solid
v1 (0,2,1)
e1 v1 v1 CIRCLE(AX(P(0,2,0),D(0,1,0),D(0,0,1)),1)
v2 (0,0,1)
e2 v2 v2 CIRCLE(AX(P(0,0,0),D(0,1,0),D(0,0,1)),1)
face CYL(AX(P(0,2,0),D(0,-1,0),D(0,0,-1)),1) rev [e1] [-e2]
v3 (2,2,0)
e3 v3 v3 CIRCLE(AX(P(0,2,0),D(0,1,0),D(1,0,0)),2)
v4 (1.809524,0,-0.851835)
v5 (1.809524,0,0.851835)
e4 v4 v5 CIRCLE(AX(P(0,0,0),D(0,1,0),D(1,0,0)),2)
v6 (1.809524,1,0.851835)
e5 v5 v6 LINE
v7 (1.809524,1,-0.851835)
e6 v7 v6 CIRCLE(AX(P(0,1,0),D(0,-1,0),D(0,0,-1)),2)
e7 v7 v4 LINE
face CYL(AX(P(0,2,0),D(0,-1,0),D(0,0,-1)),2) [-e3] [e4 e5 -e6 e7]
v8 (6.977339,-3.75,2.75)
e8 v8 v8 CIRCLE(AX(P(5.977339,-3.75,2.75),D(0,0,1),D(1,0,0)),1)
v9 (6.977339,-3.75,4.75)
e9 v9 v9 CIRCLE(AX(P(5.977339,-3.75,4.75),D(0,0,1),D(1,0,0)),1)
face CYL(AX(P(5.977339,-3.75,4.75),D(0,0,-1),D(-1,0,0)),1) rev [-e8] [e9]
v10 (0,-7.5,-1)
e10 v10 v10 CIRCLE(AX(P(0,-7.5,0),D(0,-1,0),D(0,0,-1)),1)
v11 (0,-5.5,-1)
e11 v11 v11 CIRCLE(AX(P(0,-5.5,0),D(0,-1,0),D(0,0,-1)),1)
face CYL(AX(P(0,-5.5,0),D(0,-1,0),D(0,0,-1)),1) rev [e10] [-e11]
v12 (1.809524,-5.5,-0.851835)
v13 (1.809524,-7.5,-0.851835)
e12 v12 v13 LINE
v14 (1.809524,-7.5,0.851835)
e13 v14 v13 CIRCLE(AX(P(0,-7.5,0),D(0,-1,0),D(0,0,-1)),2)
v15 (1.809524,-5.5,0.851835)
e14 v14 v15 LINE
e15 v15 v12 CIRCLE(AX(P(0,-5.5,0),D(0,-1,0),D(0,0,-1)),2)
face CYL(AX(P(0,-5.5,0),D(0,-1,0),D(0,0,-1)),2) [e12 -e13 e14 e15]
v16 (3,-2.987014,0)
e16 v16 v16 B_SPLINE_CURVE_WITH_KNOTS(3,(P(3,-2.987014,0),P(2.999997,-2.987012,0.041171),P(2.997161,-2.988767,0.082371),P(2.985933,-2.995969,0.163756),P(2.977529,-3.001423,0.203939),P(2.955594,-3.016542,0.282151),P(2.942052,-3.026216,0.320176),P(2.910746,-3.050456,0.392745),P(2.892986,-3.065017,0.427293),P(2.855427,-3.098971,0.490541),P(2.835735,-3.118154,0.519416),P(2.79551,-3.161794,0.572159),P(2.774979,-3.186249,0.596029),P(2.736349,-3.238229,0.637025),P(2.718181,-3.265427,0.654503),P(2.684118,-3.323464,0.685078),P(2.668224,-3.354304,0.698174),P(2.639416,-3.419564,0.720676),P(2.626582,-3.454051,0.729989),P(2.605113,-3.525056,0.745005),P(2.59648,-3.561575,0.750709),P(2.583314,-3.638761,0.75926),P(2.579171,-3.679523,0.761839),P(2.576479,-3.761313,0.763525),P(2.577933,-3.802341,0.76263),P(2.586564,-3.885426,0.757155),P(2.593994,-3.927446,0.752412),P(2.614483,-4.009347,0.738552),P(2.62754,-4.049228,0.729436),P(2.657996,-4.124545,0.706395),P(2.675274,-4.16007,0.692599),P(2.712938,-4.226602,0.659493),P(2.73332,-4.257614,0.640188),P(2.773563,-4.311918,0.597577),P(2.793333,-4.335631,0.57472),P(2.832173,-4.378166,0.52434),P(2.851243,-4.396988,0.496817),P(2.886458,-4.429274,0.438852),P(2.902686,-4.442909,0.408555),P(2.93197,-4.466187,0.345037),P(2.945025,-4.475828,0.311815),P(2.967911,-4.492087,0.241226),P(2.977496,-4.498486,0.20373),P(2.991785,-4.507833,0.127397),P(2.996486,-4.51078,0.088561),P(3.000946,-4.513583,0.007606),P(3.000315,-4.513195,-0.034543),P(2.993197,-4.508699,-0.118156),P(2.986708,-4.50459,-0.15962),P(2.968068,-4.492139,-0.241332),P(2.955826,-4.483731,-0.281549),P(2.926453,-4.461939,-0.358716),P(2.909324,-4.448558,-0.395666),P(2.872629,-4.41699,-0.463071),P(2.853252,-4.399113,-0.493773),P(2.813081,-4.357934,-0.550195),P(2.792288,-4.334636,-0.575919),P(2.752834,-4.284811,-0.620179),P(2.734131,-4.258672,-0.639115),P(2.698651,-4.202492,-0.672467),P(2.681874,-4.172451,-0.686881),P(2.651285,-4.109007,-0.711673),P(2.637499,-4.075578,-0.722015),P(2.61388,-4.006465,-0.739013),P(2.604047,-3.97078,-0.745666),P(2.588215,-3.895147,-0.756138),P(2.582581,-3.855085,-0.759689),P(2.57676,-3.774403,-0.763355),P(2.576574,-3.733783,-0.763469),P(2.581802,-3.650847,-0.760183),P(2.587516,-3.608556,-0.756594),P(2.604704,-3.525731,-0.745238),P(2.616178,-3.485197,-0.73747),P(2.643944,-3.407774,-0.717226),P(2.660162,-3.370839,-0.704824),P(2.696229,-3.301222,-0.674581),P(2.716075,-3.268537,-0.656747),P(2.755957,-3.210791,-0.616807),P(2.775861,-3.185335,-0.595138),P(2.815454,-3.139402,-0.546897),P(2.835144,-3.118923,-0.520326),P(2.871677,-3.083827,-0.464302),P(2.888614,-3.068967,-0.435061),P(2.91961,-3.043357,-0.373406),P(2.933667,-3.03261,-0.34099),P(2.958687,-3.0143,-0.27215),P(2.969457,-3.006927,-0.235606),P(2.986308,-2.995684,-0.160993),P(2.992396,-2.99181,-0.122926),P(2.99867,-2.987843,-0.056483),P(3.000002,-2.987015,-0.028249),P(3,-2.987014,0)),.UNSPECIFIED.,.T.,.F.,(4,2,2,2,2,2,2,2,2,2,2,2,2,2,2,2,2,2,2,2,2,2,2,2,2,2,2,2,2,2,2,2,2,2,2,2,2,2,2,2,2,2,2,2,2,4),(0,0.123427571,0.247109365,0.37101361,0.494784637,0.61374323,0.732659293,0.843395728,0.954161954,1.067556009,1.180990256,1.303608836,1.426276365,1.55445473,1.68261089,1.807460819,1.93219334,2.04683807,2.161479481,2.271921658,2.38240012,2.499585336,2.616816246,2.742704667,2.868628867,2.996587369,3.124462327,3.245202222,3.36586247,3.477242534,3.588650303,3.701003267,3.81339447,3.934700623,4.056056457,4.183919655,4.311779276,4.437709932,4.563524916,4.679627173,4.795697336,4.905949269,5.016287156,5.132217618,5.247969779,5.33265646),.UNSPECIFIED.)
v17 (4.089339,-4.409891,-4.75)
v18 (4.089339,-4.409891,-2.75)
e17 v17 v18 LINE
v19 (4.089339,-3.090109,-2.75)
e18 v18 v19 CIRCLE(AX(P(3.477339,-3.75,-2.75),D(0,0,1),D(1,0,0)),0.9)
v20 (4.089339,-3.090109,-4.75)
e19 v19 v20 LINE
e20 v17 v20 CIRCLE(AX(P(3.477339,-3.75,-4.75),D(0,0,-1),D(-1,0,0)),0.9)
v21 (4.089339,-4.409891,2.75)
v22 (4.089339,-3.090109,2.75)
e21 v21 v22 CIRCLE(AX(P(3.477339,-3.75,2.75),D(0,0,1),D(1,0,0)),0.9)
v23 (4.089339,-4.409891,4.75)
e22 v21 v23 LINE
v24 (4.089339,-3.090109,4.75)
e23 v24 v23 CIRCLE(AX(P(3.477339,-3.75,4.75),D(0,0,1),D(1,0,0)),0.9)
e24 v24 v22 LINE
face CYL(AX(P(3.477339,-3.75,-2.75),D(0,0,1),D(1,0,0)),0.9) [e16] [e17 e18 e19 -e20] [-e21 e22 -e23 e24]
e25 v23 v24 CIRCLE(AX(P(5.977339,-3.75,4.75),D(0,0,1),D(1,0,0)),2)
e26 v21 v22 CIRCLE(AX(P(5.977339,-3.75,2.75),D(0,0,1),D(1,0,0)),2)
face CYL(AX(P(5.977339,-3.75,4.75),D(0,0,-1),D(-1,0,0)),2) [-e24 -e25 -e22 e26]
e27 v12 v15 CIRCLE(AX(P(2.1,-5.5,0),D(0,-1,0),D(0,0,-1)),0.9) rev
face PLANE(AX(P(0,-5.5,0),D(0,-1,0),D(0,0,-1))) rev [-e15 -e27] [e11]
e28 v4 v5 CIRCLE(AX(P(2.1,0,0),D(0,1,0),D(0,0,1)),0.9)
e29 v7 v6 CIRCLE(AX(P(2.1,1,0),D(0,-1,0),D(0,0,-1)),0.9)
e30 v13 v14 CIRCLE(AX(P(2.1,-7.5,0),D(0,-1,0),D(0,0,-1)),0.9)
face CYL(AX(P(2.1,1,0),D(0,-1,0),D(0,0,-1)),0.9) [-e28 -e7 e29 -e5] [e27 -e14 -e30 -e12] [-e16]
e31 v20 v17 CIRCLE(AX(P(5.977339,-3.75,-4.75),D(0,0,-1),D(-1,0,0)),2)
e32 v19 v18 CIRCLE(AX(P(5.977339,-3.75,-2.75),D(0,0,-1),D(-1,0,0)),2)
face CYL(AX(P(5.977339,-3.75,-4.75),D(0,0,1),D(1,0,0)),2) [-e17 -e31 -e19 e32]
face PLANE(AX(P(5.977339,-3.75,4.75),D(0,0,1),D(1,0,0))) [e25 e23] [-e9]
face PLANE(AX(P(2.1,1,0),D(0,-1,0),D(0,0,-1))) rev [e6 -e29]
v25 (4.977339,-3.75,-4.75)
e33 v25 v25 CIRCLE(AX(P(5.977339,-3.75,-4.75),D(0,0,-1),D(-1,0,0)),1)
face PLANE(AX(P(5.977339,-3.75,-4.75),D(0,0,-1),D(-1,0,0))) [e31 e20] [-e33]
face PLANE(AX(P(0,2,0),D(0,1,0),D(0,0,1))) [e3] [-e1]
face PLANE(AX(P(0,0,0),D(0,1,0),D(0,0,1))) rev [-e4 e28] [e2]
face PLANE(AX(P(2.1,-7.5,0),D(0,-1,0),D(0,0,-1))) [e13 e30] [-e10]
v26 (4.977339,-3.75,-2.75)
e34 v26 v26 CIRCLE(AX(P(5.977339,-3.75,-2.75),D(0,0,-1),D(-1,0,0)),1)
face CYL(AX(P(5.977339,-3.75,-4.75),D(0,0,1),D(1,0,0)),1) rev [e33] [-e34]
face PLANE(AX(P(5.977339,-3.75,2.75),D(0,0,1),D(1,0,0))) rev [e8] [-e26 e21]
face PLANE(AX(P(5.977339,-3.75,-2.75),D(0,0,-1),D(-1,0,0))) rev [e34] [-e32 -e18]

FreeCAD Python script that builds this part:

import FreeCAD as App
import Part
import Sketcher
from FreeCAD import Vector
Q = App.Units.Quantity

doc = App.newDocument("Part")
body = doc.addObject("PartDesign::Body", "Body")

# Sketch on XZ plane
sketch1 = body.newObject("Sketcher::SketchObject", "Sketch")
sketch1.AttachmentSupport = (doc.getObject("XZ_Plane"), [""])
sketch1.MapMode = "FlatFace"
sketch1.addGeometry(Part.Circle(Vector(0, 0, 0), Vector(0, 0, 1), 2), False)
sketch1.addGeometry(Part.Circle(Vector(0, 0, 0), Vector(0, 0, 1), 1), False)
sketch1.addConstraint(Sketcher.Constraint("Coincident", 0, 3, -1, 1))
sketch1.addConstraint(Sketcher.Constraint("Coincident", 1, 3, -1, 1))
sketch1.addConstraint(Sketcher.Constraint("Diameter", 0, Q("4 mm")))
sketch1.addConstraint(Sketcher.Constraint("Diameter", 1, Q("2 mm")))
pad1 = body.newObject("PartDesign::Pad", "Pad")
pad1.Profile = sketch1
pad1.Length = 2
pad1.Reversed = True

# Sketch on XZ plane
sketch2 = body.newObject("Sketcher::SketchObject", "Sketch001")
sketch2.AttachmentSupport = (doc.getObject("XZ_Plane"), [""])
sketch2.MapMode = "FlatFace"
sketch2.addGeometry(Part.Circle(Vector(2.1, 0, 0), Vector(0, 0, 1), 0.9), False)
sketch2.addConstraint(Sketcher.Constraint("PointOnObject", 0, 3, -1))
sketch2.addConstraint(Sketcher.Constraint("Diameter", 0, Q("1.8 mm")))
sketch2.addConstraint(Sketcher.Constraint("DistanceX", -1, 1, 0, 3, Q("2.1 mm")))
pad2 = body.newObject("PartDesign::Pad", "Pad001")
pad2.Profile = sketch2
pad2.Type = "TwoLengths"
pad2.Length = 7.5
pad2.Length2 = 1

# Sketch on XZ plane
sketch3 = body.newObject("Sketcher::SketchObject", "Sketch002")
sketch3.AttachmentSupport = (doc.getObject("XZ_Plane"), [""])
sketch3.MapMode = "FlatFace"
sketch3.AttachmentOffset = App.Placement(Vector(0, 0, 7.5), App.Rotation())
sketch3.addGeometry(Part.Circle(Vector(0, 0, 0), Vector(0, 0, 1), 2), False)
sketch3.addGeometry(Part.Circle(Vector(0, 0, 0), Vector(0, 0, 1), 1), False)
sketch3.addConstraint(Sketcher.Constraint("Coincident", 0, 3, -1, 1))
sketch3.addConstraint(Sketcher.Constraint("Coincident", 1, 3, -1, 1))
sketch3.addConstraint(Sketcher.Constraint("Diameter", 0, Q("4 mm")))
sketch3.addConstraint(Sketcher.Constraint("Diameter", 1, Q("2 mm")))
pad3 = body.newObject("PartDesign::Pad", "Pad002")
pad3.Profile = sketch3
pad3.Length = 2
pad3.Reversed = True

# Sketch on YZ plane
sketch4 = body.newObject("Sketcher::SketchObject", "Sketch003")
sketch4.AttachmentSupport = (doc.getObject("YZ_Plane"), [""])
sketch4.MapMode = "FlatFace"
sketch4.AttachmentOffset = App.Placement(Vector(0, 0, 1.877339), App.Rotation())
sketch4.addGeometry(Part.Circle(Vector(-3.8, 0, 0), Vector(0, 0, 1), 0.5), False)
sketch4.addConstraint(Sketcher.Constraint("PointOnObject", 0, 3, -1))
sketch4.addConstraint(Sketcher.Constraint("Diameter", 0, Q("1 mm")))
sketch4.addConstraint(Sketcher.Constraint("DistanceX", 0, 3, -1, 1, Q("3.75 mm")))
pad4 = body.newObject("PartDesign::Pad", "Pad003")
pad4.Profile = sketch4
pad4.Length = 2

# Sketch on XY plane
sketch5 = body.newObject("Sketcher::SketchObject", "Sketch004")
sketch5.AttachmentSupport = (doc.getObject("XY_Plane"), [""])
sketch5.MapMode = "FlatFace"
sketch5.addGeometry(Part.Circle(Vector(3.5, -3.8, 0), Vector(0, 0, 1), 0.9), False)
sketch5.addConstraint(Sketcher.Constraint("Diameter", 0, Q("1.8 mm")))
sketch5.addConstraint(Sketcher.Constraint("DistanceY", 0, 3, -1, 1, Q("3.75 mm")))
sketch5.addConstraint(Sketcher.Constraint("DistanceX", -1, 1, 0, 3, Q("3.477339 mm")))
pad5 = body.newObject("PartDesign::Pad", "Pad004")
pad5.Profile = sketch5
pad5.Type = "TwoLengths"
pad5.Length = 2.75
pad5.Length2 = 2.75

# Sketch on XY plane
sketch6 = body.newObject("Sketcher::SketchObject", "Sketch005")
sketch6.AttachmentSupport = (doc.getObject("XY_Plane"), [""])
sketch6.MapMode = "FlatFace"
sketch6.AttachmentOffset = App.Placement(Vector(0, 0, 2.75), App.Rotation())
sketch6.addGeometry(Part.Circle(Vector(6, -3.8, 0), Vector(0, 0, 1), 2), False)
sketch6.addGeometry(Part.Circle(Vector(6, -3.8, 0), Vector(0, 0, 1), 1), False)
sketch6.addConstraint(Sketcher.Constraint("Coincident", 1, 3, 0, 3))
sketch6.addConstraint(Sketcher.Constraint("Diameter", 0, Q("4 mm")))
sketch6.addConstraint(Sketcher.Constraint("Diameter", 1, Q("2 mm")))
sketch6.addConstraint(Sketcher.Constraint("DistanceY", 0, 3, -1, 1, Q("3.75 mm")))
sketch6.addConstraint(Sketcher.Constraint("DistanceX", -1, 1, 0, 3, Q("5.977339 mm")))
pad6 = body.newObject("PartDesign::Pad", "Pad005")
pad6.Profile = sketch6
pad6.Length = 2

# Sketch on XY plane
sketch7 = body.newObject("Sketcher::SketchObject", "Sketch006")
sketch7.AttachmentSupport = (doc.getObject("XY_Plane"), [""])
sketch7.MapMode = "FlatFace"
sketch7.AttachmentOffset = App.Placement(Vector(0, 0, -4.75), App.Rotation())
sketch7.addGeometry(Part.Circle(Vector(6, -3.8, 0), Vector(0, 0, 1), 2), False)
sketch7.addGeometry(Part.Circle(Vector(6, -3.8, 0), Vector(0, 0, 1), 1), False)
sketch7.addConstraint(Sketcher.Constraint("Coincident", 1, 3, 0, 3))
sketch7.addConstraint(Sketcher.Constraint("Diameter", 0, Q("4 mm")))
sketch7.addConstraint(Sketcher.Constraint("Diameter", 1, Q("2 mm")))
sketch7.addConstraint(Sketcher.Constraint("DistanceY", 0, 3, -1, 1, Q("3.75 mm")))
sketch7.addConstraint(Sketcher.Constraint("DistanceX", -1, 1, 0, 3, Q("5.977339 mm")))
pad7 = body.newObject("PartDesign::Pad", "Pad006")
pad7.Profile = sketch7
pad7.Length = 2

# Sketch on XY plane
sketch8 = body.newObject("Sketcher::SketchObject", "Sketch007")
sketch8.AttachmentSupport = (doc.getObject("XY_Plane"), [""])
sketch8.MapMode = "FlatFace"
sketch8.AttachmentOffset = App.Placement(Vector(0, 0, -2.75), App.Rotation())
sketch8.addGeometry(Part.Circle(Vector(3.5, -3.8, 0), Vector(0, 0, 1), 0.9), False)
sketch8.addConstraint(Sketcher.Constraint("Diameter", 0, Q("1.8 mm")))
sketch8.addConstraint(Sketcher.Constraint("DistanceY", 0, 3, -1, 1, Q("3.75 mm")))
sketch8.addConstraint(Sketcher.Constraint("DistanceX", -1, 1, 0, 3, Q("3.477339 mm")))
pad8 = body.newObject("PartDesign::Pad", "Pad007")
pad8.Profile = sketch8
pad8.Length = 2
pad8.Reversed = True

# Sketch on XY plane
sketch9 = body.newObject("Sketcher::SketchObject", "Sketch008")
sketch9.AttachmentSupport = (doc.getObject("XY_Plane"), [""])
sketch9.MapMode = "FlatFace"
sketch9.AttachmentOffset = App.Placement(Vector(0, 0, 4.75), App.Rotation())
sketch9.addGeometry(Part.Circle(Vector(3.5, -3.8, 0), Vector(0, 0, 1), 0.9), False)
sketch9.addConstraint(Sketcher.Constraint("Diameter", 0, Q("1.8 mm")))
sketch9.addConstraint(Sketcher.Constraint("DistanceY", 0, 3, -1, 1, Q("3.75 mm")))
sketch9.addConstraint(Sketcher.Constraint("DistanceX", -1, 1, 0, 3, Q("3.477339 mm")))
pad9 = body.newObject("PartDesign::Pad", "Pad008")
pad9.Profile = sketch9
pad9.Length = 2
pad9.Reversed = True

doc.recompute()
